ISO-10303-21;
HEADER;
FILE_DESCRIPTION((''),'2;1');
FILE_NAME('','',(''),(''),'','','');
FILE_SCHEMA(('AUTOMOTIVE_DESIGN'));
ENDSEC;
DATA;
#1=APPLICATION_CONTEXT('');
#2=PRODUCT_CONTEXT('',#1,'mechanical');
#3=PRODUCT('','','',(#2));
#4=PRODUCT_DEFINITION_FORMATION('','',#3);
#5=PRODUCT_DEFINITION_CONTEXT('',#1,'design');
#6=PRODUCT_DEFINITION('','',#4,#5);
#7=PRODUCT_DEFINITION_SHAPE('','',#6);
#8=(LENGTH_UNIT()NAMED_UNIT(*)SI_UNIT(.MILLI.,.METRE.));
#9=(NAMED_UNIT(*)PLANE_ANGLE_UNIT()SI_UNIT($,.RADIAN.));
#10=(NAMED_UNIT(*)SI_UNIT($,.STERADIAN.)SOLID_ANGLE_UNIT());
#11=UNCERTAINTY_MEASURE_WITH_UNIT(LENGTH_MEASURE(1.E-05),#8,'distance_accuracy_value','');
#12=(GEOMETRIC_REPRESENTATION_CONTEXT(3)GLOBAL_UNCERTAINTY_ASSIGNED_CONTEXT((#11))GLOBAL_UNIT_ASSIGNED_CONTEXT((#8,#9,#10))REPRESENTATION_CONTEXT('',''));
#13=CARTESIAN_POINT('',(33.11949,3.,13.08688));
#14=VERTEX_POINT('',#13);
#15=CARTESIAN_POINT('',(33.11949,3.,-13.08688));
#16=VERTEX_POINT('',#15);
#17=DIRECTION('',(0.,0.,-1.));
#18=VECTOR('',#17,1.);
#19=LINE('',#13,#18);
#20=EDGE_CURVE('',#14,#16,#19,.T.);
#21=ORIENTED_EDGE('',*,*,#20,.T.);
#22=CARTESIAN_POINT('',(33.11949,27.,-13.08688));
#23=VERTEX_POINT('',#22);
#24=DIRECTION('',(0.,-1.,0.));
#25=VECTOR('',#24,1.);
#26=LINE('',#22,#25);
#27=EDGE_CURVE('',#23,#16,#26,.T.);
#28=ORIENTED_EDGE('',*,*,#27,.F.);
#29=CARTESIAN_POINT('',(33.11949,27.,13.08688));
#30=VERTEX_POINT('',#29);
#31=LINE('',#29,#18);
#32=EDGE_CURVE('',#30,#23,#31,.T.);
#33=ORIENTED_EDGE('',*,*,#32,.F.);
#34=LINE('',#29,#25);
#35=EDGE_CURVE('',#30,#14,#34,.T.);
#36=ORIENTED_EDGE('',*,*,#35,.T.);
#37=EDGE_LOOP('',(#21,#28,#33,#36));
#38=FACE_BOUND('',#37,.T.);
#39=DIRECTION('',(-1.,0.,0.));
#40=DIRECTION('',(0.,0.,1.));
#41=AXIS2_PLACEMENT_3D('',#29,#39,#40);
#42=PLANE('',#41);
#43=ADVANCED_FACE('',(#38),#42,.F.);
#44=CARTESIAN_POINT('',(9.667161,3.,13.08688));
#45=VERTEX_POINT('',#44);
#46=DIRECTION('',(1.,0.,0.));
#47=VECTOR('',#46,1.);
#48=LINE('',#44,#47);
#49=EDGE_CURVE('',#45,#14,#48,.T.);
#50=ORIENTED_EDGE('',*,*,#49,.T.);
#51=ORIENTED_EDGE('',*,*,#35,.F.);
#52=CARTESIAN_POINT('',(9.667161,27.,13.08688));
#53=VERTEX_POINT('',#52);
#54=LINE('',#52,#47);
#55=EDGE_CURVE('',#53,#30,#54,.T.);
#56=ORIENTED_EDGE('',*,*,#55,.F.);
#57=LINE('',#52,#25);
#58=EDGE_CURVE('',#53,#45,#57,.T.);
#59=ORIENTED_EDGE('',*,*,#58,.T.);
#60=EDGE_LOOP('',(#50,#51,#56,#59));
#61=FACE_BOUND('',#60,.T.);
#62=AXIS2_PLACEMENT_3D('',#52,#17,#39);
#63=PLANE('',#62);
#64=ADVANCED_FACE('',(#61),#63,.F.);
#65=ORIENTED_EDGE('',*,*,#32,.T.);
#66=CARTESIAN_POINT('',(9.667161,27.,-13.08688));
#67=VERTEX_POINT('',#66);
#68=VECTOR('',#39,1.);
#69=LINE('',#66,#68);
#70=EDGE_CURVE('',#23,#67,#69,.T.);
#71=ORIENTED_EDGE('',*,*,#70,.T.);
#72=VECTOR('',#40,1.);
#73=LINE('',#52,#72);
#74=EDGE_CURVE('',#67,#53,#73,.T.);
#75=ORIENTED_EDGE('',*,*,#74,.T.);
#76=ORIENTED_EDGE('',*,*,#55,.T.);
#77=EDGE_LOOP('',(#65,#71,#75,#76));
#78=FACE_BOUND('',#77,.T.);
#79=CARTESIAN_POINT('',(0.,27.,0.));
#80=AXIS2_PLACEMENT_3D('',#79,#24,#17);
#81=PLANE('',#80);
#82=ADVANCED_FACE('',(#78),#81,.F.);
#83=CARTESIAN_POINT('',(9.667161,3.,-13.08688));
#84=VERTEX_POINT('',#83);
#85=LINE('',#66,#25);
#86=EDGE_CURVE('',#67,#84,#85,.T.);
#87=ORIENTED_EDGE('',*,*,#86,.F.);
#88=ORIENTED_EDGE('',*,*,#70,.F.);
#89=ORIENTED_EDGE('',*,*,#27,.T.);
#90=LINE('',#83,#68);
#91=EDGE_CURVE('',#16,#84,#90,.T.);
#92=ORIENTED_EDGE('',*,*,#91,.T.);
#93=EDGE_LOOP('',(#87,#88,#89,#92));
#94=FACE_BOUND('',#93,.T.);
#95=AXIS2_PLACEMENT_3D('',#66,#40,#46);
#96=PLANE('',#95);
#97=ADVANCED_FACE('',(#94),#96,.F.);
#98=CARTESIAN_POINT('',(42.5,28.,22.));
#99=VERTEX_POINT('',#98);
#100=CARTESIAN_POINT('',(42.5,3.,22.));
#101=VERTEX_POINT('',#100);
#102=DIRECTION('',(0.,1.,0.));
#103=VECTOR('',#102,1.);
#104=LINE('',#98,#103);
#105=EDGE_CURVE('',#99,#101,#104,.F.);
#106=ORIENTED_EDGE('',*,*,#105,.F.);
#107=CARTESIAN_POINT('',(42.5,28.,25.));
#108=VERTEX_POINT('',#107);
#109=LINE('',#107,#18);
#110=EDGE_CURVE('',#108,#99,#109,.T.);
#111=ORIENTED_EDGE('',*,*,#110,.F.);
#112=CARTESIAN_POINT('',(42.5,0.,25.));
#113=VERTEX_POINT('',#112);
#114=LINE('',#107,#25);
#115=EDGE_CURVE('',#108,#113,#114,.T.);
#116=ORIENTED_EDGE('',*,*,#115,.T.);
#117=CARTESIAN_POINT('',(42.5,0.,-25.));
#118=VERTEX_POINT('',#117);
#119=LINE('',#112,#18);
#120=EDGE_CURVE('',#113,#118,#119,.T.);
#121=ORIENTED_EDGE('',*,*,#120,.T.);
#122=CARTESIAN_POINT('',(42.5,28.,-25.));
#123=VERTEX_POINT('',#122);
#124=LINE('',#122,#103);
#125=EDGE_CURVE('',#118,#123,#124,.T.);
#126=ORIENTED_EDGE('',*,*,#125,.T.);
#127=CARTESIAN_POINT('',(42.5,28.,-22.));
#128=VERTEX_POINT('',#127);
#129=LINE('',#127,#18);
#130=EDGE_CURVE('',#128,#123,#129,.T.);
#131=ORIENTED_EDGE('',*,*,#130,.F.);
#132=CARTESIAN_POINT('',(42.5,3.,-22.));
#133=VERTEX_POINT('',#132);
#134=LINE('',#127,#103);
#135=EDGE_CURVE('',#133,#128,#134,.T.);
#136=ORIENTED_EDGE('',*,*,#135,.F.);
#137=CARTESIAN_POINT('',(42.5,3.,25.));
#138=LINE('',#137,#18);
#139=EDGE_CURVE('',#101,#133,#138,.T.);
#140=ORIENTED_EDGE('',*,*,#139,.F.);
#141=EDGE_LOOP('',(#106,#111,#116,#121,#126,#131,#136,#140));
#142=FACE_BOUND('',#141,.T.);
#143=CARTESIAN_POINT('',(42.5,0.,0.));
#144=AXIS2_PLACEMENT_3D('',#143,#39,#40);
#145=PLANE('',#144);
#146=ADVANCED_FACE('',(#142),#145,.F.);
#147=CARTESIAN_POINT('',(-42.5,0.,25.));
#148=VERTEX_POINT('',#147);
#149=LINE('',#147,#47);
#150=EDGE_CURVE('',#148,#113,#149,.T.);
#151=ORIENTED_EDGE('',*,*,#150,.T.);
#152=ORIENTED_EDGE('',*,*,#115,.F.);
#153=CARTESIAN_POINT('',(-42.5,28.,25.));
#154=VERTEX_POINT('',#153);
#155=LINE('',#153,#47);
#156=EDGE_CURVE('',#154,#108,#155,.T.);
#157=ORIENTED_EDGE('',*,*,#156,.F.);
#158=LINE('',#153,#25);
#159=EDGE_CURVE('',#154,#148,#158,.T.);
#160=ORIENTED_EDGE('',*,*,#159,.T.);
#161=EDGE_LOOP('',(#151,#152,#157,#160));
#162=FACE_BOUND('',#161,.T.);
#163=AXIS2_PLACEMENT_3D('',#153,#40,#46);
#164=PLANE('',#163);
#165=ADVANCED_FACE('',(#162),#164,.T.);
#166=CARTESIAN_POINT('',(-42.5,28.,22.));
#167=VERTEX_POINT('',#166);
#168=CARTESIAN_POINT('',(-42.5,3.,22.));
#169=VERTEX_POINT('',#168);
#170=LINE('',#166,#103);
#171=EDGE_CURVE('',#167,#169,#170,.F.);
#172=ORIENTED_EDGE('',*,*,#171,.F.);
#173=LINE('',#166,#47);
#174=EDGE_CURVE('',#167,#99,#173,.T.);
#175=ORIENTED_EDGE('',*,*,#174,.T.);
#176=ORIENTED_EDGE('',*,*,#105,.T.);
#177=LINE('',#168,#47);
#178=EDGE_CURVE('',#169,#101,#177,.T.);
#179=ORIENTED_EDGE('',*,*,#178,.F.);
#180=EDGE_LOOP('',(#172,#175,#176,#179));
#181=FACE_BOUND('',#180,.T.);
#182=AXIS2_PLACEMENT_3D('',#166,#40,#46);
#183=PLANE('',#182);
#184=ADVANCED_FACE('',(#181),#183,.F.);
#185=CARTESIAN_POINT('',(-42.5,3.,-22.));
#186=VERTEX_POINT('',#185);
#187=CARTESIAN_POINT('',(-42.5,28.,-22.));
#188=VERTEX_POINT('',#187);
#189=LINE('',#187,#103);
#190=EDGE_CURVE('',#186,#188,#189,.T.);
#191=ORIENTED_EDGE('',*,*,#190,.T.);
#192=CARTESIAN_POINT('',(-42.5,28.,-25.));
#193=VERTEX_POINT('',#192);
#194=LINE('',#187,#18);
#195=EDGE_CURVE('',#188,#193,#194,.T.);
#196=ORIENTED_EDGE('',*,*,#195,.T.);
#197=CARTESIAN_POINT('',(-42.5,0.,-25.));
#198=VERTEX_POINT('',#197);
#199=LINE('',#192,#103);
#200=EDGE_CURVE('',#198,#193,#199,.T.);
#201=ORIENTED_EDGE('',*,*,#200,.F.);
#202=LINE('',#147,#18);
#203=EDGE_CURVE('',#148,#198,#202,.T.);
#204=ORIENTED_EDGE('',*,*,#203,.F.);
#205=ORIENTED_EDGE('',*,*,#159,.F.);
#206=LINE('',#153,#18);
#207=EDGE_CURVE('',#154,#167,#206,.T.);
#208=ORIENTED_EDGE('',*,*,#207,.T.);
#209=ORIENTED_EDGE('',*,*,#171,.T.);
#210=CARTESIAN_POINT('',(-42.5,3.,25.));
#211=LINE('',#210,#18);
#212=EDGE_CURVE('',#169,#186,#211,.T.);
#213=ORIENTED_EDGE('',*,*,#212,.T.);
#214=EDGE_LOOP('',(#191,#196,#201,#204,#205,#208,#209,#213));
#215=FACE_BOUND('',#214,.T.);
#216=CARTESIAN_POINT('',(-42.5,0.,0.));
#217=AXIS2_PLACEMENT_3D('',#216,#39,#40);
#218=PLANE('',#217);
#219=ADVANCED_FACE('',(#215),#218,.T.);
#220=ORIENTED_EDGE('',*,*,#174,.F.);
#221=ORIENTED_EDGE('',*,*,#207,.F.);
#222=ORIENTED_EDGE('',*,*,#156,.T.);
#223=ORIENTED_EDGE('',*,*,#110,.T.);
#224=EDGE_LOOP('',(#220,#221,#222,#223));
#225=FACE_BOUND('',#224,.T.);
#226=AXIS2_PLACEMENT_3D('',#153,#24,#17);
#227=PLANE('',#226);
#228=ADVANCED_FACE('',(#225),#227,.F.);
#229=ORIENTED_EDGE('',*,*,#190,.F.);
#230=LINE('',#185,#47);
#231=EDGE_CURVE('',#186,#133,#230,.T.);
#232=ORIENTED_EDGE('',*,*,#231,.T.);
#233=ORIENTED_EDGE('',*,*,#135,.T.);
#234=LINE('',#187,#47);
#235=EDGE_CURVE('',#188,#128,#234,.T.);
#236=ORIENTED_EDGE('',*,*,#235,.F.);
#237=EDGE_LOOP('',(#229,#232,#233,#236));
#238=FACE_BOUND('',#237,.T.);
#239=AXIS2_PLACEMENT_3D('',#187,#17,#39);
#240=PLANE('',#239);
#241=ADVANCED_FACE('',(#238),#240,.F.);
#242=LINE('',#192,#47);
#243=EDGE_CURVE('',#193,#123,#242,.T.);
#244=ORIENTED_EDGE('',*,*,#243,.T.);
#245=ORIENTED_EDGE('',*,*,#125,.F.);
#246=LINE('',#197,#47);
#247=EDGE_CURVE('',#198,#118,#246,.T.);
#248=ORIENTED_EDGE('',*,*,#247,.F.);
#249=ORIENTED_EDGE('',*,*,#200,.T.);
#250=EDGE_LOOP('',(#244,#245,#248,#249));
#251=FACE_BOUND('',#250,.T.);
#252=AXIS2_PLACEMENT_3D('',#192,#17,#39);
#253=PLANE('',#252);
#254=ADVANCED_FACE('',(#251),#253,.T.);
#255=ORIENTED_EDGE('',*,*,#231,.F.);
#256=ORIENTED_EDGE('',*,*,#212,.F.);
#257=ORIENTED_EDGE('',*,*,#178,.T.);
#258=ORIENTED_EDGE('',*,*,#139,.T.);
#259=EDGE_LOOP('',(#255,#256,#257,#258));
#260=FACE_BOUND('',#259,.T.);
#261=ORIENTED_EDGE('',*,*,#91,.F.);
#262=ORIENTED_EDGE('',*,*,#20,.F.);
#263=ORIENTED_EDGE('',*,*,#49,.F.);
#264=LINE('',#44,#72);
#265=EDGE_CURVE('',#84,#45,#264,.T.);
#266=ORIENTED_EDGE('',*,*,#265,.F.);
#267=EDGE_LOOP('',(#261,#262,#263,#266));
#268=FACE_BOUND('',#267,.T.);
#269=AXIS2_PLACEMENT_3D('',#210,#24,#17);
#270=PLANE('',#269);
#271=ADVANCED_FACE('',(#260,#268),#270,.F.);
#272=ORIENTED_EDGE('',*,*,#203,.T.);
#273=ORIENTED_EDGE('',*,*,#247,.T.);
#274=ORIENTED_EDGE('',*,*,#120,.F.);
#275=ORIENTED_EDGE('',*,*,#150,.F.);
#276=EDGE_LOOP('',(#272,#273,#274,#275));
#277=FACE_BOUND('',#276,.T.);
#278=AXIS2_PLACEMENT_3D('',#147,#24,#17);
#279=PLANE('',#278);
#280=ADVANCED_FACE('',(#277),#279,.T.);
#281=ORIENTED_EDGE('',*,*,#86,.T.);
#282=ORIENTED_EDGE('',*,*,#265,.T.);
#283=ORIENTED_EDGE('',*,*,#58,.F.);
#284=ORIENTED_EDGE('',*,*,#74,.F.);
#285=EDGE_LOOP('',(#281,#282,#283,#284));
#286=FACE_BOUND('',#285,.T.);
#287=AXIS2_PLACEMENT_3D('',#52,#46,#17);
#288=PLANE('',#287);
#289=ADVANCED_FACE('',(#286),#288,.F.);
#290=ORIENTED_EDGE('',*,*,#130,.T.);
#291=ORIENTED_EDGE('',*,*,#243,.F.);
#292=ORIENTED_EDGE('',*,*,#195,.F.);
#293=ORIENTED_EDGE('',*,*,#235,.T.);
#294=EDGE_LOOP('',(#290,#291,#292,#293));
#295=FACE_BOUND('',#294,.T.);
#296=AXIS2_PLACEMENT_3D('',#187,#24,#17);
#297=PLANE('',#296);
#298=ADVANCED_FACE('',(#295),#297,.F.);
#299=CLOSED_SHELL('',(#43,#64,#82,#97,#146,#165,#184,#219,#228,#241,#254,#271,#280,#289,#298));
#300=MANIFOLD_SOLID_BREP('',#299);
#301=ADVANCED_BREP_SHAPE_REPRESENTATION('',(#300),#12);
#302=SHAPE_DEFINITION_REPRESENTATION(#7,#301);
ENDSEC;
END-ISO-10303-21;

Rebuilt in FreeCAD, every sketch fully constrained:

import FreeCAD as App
import Part
import Sketcher

V = App.Vector

doc = App.newDocument("Part")
params = doc.addObject("Spreadsheet::Sheet", "Params")
for row, (alias, value) in enumerate([
    ("sketch1_width", "28 mm"),
    ("sketch1_width2", "25 mm"),
    ("sketch1_height", "3 mm"),
    ("sketch1_height2", "44 mm"),
    ("pad1_length", "85 mm"),
    ("pad2_length", "24 mm"),
], start=1):
    params.set(f"A{row}", alias)
    params.set(f"B{row}", "=" + value)
    params.setAlias(f"B{row}", alias)

body = doc.addObject("PartDesign::Body", "Body")

# Sketch on YZ plane
sketch1 = body.newObject("Sketcher::SketchObject", "Sketch")
sketch1.AttachmentSupport = (doc.getObject("YZ_Plane"), [""])
sketch1.MapMode = "FlatFace"
sketch1.addGeometry([
    Part.LineSegment(V(0, -25, 0), V(28, -25, 0)),  # 0
    Part.LineSegment(V(28, -25, 0), V(28, -22, 0)),  # 1
    Part.LineSegment(V(28, -22, 0), V(3, -22, 0)),  # 2
    Part.LineSegment(V(3, -22, 0), V(3, 22, 0)),  # 3
    Part.LineSegment(V(3, 22, 0), V(28, 22, 0)),  # 4
    Part.LineSegment(V(28, 22, 0), V(28, 25, 0)),  # 5
    Part.LineSegment(V(28, 25, 0), V(0, 25, 0)),  # 6
    Part.LineSegment(V(0, 25, 0), V(0, -25, 0)),  # 7
], False)
sketch1.addConstraint([
    Sketcher.Constraint("Coincident", 0, 2, 1, 1),
    Sketcher.Constraint("Coincident", 1, 2, 2, 1),
    Sketcher.Constraint("Coincident", 2, 2, 3, 1),
    Sketcher.Constraint("Coincident", 3, 2, 4, 1),
    Sketcher.Constraint("Coincident", 4, 2, 5, 1),
    Sketcher.Constraint("Coincident", 5, 2, 6, 1),
    Sketcher.Constraint("Coincident", 6, 2, 7, 1),
    Sketcher.Constraint("Coincident", 7, 2, 0, 1),
    Sketcher.Constraint("Horizontal", 0),
    Sketcher.Constraint("Vertical", 1),
    Sketcher.Constraint("Horizontal", 2),
    Sketcher.Constraint("Vertical", 3),
    Sketcher.Constraint("Horizontal", 4),
    Sketcher.Constraint("Vertical", 5),
    Sketcher.Constraint("Horizontal", 6),
    Sketcher.Constraint("Vertical", 7),
    Sketcher.Constraint("Symmetric", 6, 2, 7, 2, -1, 1),
    Sketcher.Constraint("Symmetric", 1, 2, 4, 2, -1),
    Sketcher.Constraint("DistanceX", 0, 1, 0, 2, 28.0),
    Sketcher.Constraint("DistanceX", 2, 2, 2, 1, 25.0),
    Sketcher.Constraint("DistanceY", 1, 1, 1, 2, 3.0),
    Sketcher.Constraint("DistanceY", 3, 1, 3, 2, 44.0),
])
sketch1.setExpression("Constraints[18]", "Params.sketch1_width")
sketch1.setExpression("Constraints[19]", "Params.sketch1_width2")
sketch1.setExpression("Constraints[20]", "Params.sketch1_height")
sketch1.setExpression("Constraints[21]", "Params.sketch1_height2")
pad1 = body.newObject("PartDesign::Pad", "Pad")
pad1.Profile = sketch1
pad1.setExpression("Length", "Params.pad1_length")
pad1.Midplane = True

# Sketch on XZ plane
sketch2 = body.newObject("Sketcher::SketchObject", "Sketch001")
sketch2.AttachmentSupport = (doc.getObject("XZ_Plane"), [""])
sketch2.MapMode = "FlatFace"
sketch2.AttachmentOffset = App.Placement(V(0, 0, -3), App.Rotation())
sketch2.addGeometry([
    Part.LineSegment(V(10, -13, 0), V(10, 13, 0)),
    Part.LineSegment(V(10, 13, 0), V(33, 13, 0)),
    Part.LineSegment(V(33, 13, 0), V(33, -13, 0)),
    Part.LineSegment(V(33, -13, 0), V(10, -13, 0)),
], False)
sketch2.addConstraint([
    Sketcher.Constraint("Coincident", 0, 2, 1, 1),
    Sketcher.Constraint("Coincident", 1, 2, 2, 1),
    Sketcher.Constraint("Coincident", 2, 2, 3, 1),
    Sketcher.Constraint("Coincident", 3, 2, 0, 1),
    Sketcher.Constraint("Vertical", 0),
    Sketcher.Constraint("Horizontal", 1),
    Sketcher.Constraint("Vertical", 2),
    Sketcher.Constraint("Horizontal", 3),
    Sketcher.Constraint("DistanceX", 1, 1, 1, 2, 23.452329),
    Sketcher.Constraint("DistanceY", 0, 1, 0, 2, 26.17376),
    Sketcher.Constraint("DistanceX", -1, 1, 0, 2, 9.667161),
    Sketcher.Constraint("DistanceY", -1, 1, 0, 2, 13.08688),
])
pad2 = body.newObject("PartDesign::Pad", "Pad001")
pad2.Profile = sketch2
pad2.setExpression("Length", "Params.pad2_length")
pad2.Reversed = True

doc.recompute()
